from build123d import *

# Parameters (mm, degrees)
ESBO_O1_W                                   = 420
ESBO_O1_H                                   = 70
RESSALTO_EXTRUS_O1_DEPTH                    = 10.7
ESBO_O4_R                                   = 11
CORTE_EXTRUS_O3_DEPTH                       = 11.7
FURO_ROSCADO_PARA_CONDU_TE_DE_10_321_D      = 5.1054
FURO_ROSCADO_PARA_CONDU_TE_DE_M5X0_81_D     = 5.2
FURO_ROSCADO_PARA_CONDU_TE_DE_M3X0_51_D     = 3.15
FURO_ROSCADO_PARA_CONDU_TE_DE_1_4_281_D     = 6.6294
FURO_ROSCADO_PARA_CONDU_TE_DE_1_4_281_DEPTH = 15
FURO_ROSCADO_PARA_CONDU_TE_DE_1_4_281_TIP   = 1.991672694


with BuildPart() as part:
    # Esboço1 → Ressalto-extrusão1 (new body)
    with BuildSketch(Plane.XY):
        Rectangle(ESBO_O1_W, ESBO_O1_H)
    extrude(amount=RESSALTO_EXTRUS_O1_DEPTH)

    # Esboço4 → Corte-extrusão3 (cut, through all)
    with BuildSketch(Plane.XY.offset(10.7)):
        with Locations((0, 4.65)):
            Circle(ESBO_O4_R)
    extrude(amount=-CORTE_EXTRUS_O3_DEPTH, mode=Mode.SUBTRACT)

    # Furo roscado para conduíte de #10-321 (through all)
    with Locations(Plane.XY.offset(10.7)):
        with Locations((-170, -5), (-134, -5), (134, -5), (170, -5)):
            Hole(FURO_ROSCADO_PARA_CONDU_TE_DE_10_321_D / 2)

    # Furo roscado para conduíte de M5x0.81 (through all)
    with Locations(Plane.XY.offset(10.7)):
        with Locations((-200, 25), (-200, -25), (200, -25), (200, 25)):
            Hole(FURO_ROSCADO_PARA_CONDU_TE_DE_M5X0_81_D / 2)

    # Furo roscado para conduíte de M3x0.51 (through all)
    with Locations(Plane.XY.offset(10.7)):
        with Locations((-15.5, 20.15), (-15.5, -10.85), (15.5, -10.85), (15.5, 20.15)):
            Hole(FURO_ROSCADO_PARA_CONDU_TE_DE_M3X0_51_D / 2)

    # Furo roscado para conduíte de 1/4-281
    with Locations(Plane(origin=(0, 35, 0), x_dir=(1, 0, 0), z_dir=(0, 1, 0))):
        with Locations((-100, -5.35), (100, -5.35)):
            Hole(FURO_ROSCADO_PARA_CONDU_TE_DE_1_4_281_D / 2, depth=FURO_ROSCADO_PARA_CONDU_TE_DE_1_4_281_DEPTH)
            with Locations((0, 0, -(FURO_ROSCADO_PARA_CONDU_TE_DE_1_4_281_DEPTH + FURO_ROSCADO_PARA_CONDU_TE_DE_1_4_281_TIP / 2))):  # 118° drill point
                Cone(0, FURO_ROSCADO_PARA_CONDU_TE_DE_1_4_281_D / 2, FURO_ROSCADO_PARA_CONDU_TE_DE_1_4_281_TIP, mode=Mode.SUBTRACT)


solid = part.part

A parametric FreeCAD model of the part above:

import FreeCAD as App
import Part
import Sketcher

V = App.Vector


def add_polygon(sketch, points):
    """Adds a closed chain of lines whose ends are joined by coincident constraints."""
    first, n = sketch.GeometryCount, len(points)
    for a, b in zip(points, points[1:] + points[:1]):
        sketch.addGeometry(Part.LineSegment(App.Vector(*a, 0), App.Vector(*b, 0)), False)
    for i in range(n):
        sketch.addConstraint(Sketcher.Constraint("Coincident", first + i, 2, first + (i + 1) % n, 1))

doc = App.newDocument("Part")
body = doc.addObject("PartDesign::Body", "Body")

# Sketch on XY plane
sketch1 = doc.addObject("Sketcher::SketchObject", "Sketch")
body.addObject(sketch1)
sketch1.AttachmentSupport = (doc.XY_Plane, [""])
sketch1.MapMode = "FlatFace"
add_polygon(sketch1, [(-210, 35), (-210, -35), (210, -35), (210, 35)])  # lines 0-3
sketch1.addConstraint([
    Sketcher.Constraint("Vertical", 0),
    Sketcher.Constraint("Horizontal", 1),
    Sketcher.Constraint("Vertical", 2),
    Sketcher.Constraint("Horizontal", 3),
    Sketcher.Constraint("Symmetric", 0, 2, 2, 2, -1, 1),
    Sketcher.Constraint("DistanceX", 1, 1, 1, 2, 420.0),
    Sketcher.Constraint("DistanceY", 0, 2, 0, 1, 70.0),
])
pad1 = doc.addObject("PartDesign::Pad", "Pad")
body.addObject(pad1)
pad1.Profile = sketch1
pad1.Length = 10.7

# Sketch on XY plane
sketch2 = doc.addObject("Sketcher::SketchObject", "Sketch001")
body.addObject(sketch2)
sketch2.AttachmentSupport = (doc.XY_Plane, [""])
sketch2.MapMode = "FlatFace"
sketch2.AttachmentOffset = App.Placement(V(0, 0, 10.7), App.Rotation())
sketch2.addGeometry(Part.Circle(V(0, 4.65, 0), V(0, 0, 1), 11), False)
sketch2.addConstraint([
    Sketcher.Constraint("PointOnObject", 0, 3, -2),
    Sketcher.Constraint("Diameter", 0, 22.0),
    Sketcher.Constraint("DistanceY", -1, 1, 0, 3, 4.65),
])
pocket1 = doc.addObject("PartDesign::Pocket", "Pocket")
body.addObject(pocket1)
pocket1.Profile = sketch2
pocket1.Type = "ThroughAll"

# Sketch on XY plane
sketch3 = doc.addObject("Sketcher::SketchObject", "Sketch002")
body.addObject(sketch3)
sketch3.AttachmentSupport = (doc.XY_Plane, [""])
sketch3.MapMode = "FlatFace"
sketch3.AttachmentOffset = App.Placement(V(0, 0, 10.7), App.Rotation())
sketch3.addGeometry([
    Part.Circle(V(-170, -5, 0), V(0, 0, 1), 2.5527),
    Part.Circle(V(-134, -5, 0), V(0, 0, 1), 2.5527),
    Part.Circle(V(134, -5, 0), V(0, 0, 1), 2.5527),
    Part.Circle(V(170, -5, 0), V(0, 0, 1), 2.5527),
], False)
sketch3.addConstraint([
    Sketcher.Constraint("Equal", 0, 1),
    Sketcher.Constraint("Equal", 1, 2),
    Sketcher.Constraint("Equal", 2, 3),
    Sketcher.Constraint("Symmetric", 1, 3, 2, 3, -2),
    Sketcher.Constraint("Symmetric", 0, 3, 3, 3, -2),
    Sketcher.Constraint("Horizontal", 0, 3, 1, 3),
    Sketcher.Constraint("DistanceX", 0, 3, -1, 1, 170.0),
    Sketcher.Constraint("DistanceY", 0, 3, -1, 1, 5.0),
    Sketcher.Constraint("DistanceX", 1, 3, -1, 1, 134.0),
    Sketcher.Constraint("Diameter", 0, 5.1054),
])
doc.recompute()
hole = doc.addObject("PartDesign::Hole", "Hole")
body.addObject(hole)
hole.Profile = sketch3
hole.ThreadType = "None"
hole.Diameter = 5.1054
hole.DepthType = "ThroughAll"

# Sketch on XY plane
sketch4 = doc.addObject("Sketcher::SketchObject", "Sketch003")
body.addObject(sketch4)
sketch4.AttachmentSupport = (doc.XY_Plane, [""])
sketch4.MapMode = "FlatFace"
sketch4.AttachmentOffset = App.Placement(V(0, 0, 10.7), App.Rotation())
sketch4.addGeometry([
    Part.Circle(V(-200, 25, 0), V(0, 0, 1), 2.6),
    Part.Circle(V(-200, -25, 0), V(0, 0, 1), 2.6),
    Part.Circle(V(200, -25, 0), V(0, 0, 1), 2.6),
    Part.Circle(V(200, 25, 0), V(0, 0, 1), 2.6),
], False)
sketch4.addConstraint([
    Sketcher.Constraint("Equal", 0, 1),
    Sketcher.Constraint("Equal", 1, 2),
    Sketcher.Constraint("Equal", 2, 3),
    Sketcher.Constraint("Symmetric", 0, 3, 2, 3, -1, 1),
    Sketcher.Constraint("Symmetric", 1, 3, 3, 3, -1, 1),
    Sketcher.Constraint("Symmetric", 1, 3, 2, 3, -2),
    Sketcher.Constraint("Diameter", 0, 5.2),
    Sketcher.Constraint("DistanceX", 0, 3, -1, 1, 200.0),
    Sketcher.Constraint("DistanceY", -1, 1, 0, 3, 25.0),
])
doc.recompute()
hole2 = doc.addObject("PartDesign::Hole", "Hole001")
body.addObject(hole2)
hole2.Profile = sketch4
hole2.ThreadType = "None"
hole2.Diameter = 5.2
hole2.DepthType = "ThroughAll"

# Sketch on XY plane
sketch5 = doc.addObject("Sketcher::SketchObject", "Sketch004")
body.addObject(sketch5)
sketch5.AttachmentSupport = (doc.XY_Plane, [""])
sketch5.MapMode = "FlatFace"
sketch5.AttachmentOffset = App.Placement(V(0, 0, 10.7), App.Rotation())
sketch5.addGeometry([
    Part.Circle(V(-15.5, 20.15, 0), V(0, 0, 1), 1.575),
    Part.Circle(V(-15.5, -10.85, 0), V(0, 0, 1), 1.575),
    Part.Circle(V(15.5, -10.85, 0), V(0, 0, 1), 1.575),
    Part.Circle(V(15.5, 20.15, 0), V(0, 0, 1), 1.575),
], False)
sketch5.addConstraint([
    Sketcher.Constraint("Equal", 0, 1),
    Sketcher.Constraint("Equal", 1, 2),
    Sketcher.Constraint("Equal", 2, 3),
    Sketcher.Constraint("Symmetric", 1, 3, 2, 3, -2),
    Sketcher.Constraint("Symmetric", 0, 3, 3, 3, -2),
    Sketcher.Constraint("Vertical", 0, 3, 1, 3),
    Sketcher.Constraint("Diameter", 0, 3.15),
    Sketcher.Constraint("DistanceY", 1, 3, 0, 3, 31.0),
    Sketcher.Constraint("DistanceX", 1, 3, 2, 3, 31.0),
    Sketcher.Constraint("DistanceY", -1, 1, 0, 3, 20.15),
])
doc.recompute()
hole3 = doc.addObject("PartDesign::Hole", "Hole002")
body.addObject(hole3)
hole3.Profile = sketch5
hole3.ThreadType = "None"
hole3.Diameter = 3.15
hole3.DepthType = "ThroughAll"

# Sketch on XZ plane
sketch6 = doc.addObject("Sketcher::SketchObject", "Sketch005")
body.addObject(sketch6)
sketch6.AttachmentSupport = (doc.XZ_Plane, [""])
sketch6.MapMode = "FlatFace"
sketch6.AttachmentOffset = App.Placement(V(0, 0, -35), App.Rotation())
sketch6.addGeometry([
    Part.Circle(V(-100, 5.35, 0), V(0, 0, 1), 3.3147),
    Part.Circle(V(100, 5.35, 0), V(0, 0, 1), 3.3147),
], False)
sketch6.addConstraint([
    Sketcher.Constraint("Equal", 0, 1),
    Sketcher.Constraint("Symmetric", 0, 3, 1, 3, -2),
    Sketcher.Constraint("DistanceX", 0, 3, -1, 1, 100.0),
    Sketcher.Constraint("Diameter", 0, 6.6294),
    Sketcher.Constraint("DistanceY", -1, 1, 0, 3, 5.35),
])
doc.recompute()
hole4 = doc.addObject("PartDesign::Hole", "Hole003")
body.addObject(hole4)
hole4.Profile = sketch6
hole4.ThreadType = "None"
hole4.Diameter = 6.6294
hole4.DepthType = "Dimension"
hole4.Depth = 15
hole4.DrillPoint = "Angled"
hole4.DrillPointAngle = 118
hole4.Reversed = True

doc.recompute()
